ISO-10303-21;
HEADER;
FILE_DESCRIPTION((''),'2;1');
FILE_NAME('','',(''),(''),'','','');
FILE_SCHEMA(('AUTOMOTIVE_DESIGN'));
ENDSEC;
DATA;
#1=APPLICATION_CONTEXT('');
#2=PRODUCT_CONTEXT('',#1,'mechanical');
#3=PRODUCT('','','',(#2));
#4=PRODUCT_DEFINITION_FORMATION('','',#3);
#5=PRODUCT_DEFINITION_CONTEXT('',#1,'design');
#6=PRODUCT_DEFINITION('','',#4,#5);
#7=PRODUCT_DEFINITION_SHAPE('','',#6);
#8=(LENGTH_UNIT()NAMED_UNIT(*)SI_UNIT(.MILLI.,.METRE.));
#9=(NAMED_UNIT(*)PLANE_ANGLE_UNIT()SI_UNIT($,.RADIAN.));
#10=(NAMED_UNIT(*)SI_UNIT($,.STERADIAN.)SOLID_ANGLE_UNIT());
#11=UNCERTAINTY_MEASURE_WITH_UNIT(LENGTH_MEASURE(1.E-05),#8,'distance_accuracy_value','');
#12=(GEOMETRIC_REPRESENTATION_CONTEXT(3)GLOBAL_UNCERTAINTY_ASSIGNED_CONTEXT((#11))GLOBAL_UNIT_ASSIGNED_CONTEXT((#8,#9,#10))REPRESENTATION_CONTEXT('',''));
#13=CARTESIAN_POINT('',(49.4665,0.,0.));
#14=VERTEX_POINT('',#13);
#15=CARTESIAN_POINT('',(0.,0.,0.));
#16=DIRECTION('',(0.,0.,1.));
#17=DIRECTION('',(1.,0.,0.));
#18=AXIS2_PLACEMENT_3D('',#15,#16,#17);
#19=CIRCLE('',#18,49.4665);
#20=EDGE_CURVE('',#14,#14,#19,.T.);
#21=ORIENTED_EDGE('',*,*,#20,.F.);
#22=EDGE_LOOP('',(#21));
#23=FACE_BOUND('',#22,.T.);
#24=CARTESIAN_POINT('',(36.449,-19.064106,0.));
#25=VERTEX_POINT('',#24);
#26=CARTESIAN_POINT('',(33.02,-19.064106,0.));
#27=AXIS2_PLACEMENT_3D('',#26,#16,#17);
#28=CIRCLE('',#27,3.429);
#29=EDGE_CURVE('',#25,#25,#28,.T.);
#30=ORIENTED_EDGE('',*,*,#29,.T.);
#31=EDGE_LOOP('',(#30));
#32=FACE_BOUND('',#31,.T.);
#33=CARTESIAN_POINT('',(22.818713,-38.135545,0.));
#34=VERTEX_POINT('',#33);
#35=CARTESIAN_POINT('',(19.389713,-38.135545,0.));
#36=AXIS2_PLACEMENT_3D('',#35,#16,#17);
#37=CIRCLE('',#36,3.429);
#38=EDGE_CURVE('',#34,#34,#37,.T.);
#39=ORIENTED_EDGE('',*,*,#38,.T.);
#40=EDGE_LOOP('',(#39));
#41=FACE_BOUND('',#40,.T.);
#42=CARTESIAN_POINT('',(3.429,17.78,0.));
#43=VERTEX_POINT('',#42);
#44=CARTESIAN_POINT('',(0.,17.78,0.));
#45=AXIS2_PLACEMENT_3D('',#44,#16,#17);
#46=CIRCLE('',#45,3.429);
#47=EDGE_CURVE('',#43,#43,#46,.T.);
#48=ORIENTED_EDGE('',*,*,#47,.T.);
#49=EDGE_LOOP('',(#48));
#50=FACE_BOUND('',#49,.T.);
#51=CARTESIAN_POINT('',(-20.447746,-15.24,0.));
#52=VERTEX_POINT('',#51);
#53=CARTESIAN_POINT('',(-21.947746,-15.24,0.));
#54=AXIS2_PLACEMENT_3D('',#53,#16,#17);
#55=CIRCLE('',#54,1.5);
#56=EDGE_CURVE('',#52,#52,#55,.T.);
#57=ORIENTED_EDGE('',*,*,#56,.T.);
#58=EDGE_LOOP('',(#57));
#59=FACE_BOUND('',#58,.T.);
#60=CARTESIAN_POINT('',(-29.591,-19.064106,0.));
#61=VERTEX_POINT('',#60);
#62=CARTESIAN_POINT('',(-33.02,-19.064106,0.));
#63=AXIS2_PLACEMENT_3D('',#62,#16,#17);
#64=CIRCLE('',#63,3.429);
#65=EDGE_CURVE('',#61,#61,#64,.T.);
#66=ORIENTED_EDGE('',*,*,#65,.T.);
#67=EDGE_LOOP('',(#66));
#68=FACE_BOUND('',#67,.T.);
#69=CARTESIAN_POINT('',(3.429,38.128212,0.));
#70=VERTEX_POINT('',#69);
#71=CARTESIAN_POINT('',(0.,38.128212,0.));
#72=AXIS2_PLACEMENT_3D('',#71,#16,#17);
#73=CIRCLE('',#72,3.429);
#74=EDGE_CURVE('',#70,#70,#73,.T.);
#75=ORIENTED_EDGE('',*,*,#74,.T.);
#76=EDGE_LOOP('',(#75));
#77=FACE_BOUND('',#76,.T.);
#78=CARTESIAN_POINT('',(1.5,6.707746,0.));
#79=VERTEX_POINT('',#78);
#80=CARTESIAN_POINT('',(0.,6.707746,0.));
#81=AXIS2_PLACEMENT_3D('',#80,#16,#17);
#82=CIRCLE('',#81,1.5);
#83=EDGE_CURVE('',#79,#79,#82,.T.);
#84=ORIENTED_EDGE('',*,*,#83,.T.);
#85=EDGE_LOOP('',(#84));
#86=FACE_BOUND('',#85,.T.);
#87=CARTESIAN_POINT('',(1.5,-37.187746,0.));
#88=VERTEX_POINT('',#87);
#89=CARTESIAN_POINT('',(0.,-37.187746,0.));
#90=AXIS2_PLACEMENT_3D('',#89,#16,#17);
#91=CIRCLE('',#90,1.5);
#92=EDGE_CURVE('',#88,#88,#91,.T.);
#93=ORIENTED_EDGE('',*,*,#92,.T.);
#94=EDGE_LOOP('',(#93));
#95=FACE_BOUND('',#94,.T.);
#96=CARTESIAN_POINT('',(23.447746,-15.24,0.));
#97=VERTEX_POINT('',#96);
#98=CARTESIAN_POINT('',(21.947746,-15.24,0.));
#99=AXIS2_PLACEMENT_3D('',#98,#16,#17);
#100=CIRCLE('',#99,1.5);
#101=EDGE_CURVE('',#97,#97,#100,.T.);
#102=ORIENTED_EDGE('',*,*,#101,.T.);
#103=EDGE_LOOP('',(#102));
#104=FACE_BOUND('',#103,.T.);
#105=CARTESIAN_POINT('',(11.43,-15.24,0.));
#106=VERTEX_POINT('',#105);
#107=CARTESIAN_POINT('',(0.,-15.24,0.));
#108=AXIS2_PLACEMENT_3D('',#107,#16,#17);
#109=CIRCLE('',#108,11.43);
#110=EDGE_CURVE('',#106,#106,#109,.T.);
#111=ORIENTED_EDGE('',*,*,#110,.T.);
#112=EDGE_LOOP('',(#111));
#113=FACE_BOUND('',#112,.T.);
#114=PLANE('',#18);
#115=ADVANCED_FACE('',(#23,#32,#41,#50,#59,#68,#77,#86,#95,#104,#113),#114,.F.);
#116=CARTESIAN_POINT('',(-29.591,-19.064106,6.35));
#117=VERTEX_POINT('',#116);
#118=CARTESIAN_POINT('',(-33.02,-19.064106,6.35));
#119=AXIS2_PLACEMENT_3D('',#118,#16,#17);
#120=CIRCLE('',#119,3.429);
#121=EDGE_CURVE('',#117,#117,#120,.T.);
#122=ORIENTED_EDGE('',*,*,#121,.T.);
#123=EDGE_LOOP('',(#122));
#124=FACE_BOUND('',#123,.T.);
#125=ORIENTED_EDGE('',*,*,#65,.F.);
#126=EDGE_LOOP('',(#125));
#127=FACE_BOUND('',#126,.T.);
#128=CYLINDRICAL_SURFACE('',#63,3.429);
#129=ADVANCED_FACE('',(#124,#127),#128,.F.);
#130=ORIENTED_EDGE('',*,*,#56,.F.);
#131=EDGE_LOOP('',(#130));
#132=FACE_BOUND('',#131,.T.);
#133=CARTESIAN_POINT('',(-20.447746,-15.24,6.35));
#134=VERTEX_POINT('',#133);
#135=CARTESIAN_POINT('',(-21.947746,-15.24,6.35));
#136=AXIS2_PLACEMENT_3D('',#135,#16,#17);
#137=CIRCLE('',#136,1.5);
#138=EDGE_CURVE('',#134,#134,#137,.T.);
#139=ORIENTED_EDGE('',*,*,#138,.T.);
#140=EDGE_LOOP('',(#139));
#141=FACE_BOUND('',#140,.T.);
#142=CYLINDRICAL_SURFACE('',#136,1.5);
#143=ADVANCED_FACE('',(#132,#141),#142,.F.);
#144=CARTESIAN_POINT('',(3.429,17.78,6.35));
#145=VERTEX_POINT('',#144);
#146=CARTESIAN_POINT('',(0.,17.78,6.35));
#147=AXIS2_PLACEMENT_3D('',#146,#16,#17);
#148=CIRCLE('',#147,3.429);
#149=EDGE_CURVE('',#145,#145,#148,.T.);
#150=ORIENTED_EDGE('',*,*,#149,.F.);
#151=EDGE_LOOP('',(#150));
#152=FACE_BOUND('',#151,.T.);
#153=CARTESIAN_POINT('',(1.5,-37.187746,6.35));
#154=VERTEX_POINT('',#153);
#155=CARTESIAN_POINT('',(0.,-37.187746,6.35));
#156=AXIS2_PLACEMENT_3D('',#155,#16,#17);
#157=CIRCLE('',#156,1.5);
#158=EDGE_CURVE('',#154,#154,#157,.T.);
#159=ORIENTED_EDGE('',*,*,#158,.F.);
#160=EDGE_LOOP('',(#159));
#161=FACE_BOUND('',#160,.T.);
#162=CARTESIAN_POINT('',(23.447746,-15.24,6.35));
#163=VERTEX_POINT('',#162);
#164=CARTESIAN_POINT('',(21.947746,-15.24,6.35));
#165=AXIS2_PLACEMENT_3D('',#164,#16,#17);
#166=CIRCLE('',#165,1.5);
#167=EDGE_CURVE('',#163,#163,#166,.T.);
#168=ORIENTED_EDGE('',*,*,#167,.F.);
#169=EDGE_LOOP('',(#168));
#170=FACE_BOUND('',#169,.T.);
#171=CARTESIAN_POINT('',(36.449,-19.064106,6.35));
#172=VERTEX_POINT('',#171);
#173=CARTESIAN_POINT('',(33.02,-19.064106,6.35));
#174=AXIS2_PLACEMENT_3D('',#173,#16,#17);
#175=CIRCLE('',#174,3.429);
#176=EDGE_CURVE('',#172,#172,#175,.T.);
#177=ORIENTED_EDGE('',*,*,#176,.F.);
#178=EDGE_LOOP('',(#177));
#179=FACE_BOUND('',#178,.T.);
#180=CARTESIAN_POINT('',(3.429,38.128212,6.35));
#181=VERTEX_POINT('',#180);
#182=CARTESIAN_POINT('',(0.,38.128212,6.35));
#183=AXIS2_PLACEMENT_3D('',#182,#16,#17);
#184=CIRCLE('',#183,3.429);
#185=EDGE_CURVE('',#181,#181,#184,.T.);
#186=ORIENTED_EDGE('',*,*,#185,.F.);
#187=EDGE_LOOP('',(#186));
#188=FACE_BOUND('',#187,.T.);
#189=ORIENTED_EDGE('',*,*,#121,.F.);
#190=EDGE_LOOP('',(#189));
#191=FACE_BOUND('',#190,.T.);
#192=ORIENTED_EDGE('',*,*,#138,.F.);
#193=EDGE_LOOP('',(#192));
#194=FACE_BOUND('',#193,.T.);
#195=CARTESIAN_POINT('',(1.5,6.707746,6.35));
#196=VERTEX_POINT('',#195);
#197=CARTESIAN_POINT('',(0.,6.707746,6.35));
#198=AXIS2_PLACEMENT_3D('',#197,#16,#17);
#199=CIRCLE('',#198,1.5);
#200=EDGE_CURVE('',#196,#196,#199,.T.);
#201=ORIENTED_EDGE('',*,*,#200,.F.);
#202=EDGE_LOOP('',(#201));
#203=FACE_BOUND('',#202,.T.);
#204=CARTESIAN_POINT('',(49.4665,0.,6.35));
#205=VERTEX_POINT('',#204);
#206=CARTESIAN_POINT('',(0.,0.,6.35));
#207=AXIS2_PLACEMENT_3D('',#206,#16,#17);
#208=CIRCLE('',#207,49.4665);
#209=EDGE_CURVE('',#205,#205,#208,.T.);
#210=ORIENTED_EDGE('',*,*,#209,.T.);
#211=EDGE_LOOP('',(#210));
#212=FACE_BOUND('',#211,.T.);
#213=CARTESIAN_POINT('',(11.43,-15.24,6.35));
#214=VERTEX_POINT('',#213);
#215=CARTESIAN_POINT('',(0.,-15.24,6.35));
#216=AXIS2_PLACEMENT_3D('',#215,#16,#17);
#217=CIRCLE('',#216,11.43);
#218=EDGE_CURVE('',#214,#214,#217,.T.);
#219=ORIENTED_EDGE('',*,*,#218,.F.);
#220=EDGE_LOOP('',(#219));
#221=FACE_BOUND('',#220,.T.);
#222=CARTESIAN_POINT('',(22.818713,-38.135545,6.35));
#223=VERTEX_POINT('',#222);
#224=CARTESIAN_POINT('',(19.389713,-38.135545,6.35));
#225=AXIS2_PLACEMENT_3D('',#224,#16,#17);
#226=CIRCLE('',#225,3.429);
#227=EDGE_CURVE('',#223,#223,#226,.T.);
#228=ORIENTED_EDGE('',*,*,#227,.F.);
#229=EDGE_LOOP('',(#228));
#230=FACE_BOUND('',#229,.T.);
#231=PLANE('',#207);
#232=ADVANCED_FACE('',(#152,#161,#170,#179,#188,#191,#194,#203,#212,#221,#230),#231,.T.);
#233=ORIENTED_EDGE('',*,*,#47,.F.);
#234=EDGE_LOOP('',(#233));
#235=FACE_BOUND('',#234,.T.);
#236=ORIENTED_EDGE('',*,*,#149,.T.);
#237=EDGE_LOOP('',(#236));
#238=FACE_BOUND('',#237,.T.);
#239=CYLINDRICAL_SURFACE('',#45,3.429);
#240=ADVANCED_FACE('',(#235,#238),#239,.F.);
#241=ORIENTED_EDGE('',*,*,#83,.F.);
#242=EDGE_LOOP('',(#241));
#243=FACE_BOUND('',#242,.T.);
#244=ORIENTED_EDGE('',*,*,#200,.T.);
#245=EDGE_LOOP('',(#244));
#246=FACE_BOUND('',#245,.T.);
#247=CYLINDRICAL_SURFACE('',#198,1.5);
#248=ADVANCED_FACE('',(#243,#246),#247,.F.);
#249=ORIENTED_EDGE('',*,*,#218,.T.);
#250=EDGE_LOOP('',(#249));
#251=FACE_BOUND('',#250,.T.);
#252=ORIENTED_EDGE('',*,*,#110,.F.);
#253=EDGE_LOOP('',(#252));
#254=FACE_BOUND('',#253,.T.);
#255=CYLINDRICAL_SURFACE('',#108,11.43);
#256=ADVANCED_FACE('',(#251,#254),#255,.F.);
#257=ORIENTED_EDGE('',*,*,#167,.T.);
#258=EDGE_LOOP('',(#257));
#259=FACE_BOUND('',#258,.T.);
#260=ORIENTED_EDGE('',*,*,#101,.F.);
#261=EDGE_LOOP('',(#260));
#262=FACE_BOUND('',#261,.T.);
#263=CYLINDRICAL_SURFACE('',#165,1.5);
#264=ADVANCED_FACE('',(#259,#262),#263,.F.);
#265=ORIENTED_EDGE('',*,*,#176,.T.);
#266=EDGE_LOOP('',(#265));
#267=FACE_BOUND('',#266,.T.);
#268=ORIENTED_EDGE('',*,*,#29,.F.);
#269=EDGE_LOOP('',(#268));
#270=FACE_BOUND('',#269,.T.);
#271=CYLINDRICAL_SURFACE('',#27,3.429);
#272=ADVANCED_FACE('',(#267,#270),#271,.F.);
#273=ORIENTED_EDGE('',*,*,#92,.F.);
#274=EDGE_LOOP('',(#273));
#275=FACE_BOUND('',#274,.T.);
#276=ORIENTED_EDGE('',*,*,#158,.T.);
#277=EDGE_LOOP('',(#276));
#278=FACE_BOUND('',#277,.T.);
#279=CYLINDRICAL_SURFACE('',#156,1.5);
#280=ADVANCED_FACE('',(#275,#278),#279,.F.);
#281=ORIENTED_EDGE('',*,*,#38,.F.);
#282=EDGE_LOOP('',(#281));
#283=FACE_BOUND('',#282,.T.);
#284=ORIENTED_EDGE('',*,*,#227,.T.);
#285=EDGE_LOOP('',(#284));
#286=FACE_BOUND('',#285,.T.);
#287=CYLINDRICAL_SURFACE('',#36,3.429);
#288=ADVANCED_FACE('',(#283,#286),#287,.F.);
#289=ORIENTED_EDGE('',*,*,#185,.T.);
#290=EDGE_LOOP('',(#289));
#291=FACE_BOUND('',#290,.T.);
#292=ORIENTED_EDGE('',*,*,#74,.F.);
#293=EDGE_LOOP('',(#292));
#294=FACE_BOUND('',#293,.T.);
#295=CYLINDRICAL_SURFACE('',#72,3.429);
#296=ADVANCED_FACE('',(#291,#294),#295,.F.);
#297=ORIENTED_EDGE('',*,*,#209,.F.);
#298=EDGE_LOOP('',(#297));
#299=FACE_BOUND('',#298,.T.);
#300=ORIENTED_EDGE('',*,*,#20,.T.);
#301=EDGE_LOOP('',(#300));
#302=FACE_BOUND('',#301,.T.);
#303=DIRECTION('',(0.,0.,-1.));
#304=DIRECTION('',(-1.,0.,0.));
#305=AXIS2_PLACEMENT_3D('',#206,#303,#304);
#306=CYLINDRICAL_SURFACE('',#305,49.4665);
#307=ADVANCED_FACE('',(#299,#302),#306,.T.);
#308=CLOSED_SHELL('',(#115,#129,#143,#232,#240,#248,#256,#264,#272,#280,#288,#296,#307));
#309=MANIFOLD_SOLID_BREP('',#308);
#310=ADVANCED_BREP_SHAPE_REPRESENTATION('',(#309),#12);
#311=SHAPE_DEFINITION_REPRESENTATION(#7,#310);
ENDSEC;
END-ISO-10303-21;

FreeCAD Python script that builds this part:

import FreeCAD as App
import Part
import Sketcher
Q = App.Units.Quantity

doc = App.newDocument("Part")
body = doc.addObject("PartDesign::Body", "Body")

# Sketch on XY plane
sketch1 = body.newObject("Sketcher::SketchObject", "Sketch")
sketch1.AttachmentSupport = (doc.getObject("XY_Plane"), [""])
sketch1.MapMode = "FlatFace"
sketch1.addGeometry(Part.Circle(App.Vector(0, 0, 0), App.Vector(0, 0, 1), 49), False)
sketch1.addConstraint([
    Sketcher.Constraint("Coincident", 0, 3, -1, 1),
    Sketcher.Constraint("Diameter", 0, Q("3.895 in")),
])
pad1 = body.newObject("PartDesign::Pad", "Pad")
pad1.Profile = sketch1
pad1.Length = Q("0.25 in")

# Sketch on XY plane
sketch2 = body.newObject("Sketcher::SketchObject", "Sketch001")
sketch2.AttachmentSupport = (doc.getObject("XY_Plane"), [""])
sketch2.MapMode = "FlatFace"
sketch2.AttachmentOffset = App.Placement(App.Vector(0, 0, 0.25 * 25.4), App.Rotation())
sketch2.addGeometry([
    Part.Circle(App.Vector(0, 6.7, 0), App.Vector(0, 0, 1), 1.5),
    Part.Circle(App.Vector(-21.9, -15.2, 0), App.Vector(0, 0, 1), 1.5),
    Part.Circle(App.Vector(0, -37.2, 0), App.Vector(0, 0, 1), 1.5),
    Part.Circle(App.Vector(21.9, -15.2, 0), App.Vector(0, 0, 1), 1.5),
], False)
sketch2.addConstraint([
    Sketcher.Constraint("Equal", 0, 1),
    Sketcher.Constraint("Equal", 1, 2),
    Sketcher.Constraint("Equal", 2, 3),
    Sketcher.Constraint("Symmetric", 1, 3, 3, 3, -2),
    Sketcher.Constraint("PointOnObject", 0, 3, -2),
    Sketcher.Constraint("PointOnObject", 2, 3, -2),
    Sketcher.Constraint("DistanceY", 1, 3, -1, 1, Q("0.6 in")),
    Sketcher.Constraint("Diameter", 0, Q("3 mm")),
    Sketcher.Constraint("DistanceY", 2, 3, 0, 3, Q("43.895492 mm")),
    Sketcher.Constraint("DistanceX", 1, 3, 3, 3, Q("43.895492 mm")),
    Sketcher.Constraint("DistanceY", -1, 1, 0, 3, Q("6.707746 mm")),
])
doc.recompute()
hole = body.newObject("PartDesign::Hole", "Hole")
hole.Profile = sketch2
hole.ThreadType = "None"
hole.Diameter = 3
hole.DepthType = "ThroughAll"

# Sketch on XY plane
sketch3 = body.newObject("Sketcher::SketchObject", "Sketch002")
sketch3.AttachmentSupport = (doc.getObject("XY_Plane"), [""])
sketch3.MapMode = "FlatFace"
sketch3.AttachmentOffset = App.Placement(App.Vector(0, 0, 0.25 * 25.4), App.Rotation())
sketch3.addGeometry([
    Part.Circle(App.Vector(0, 38.1, 0), App.Vector(0, 0, 1), 3.4),
    Part.Circle(App.Vector(-33, -19.1, 0), App.Vector(0, 0, 1), 3.4),
    Part.Circle(App.Vector(33, -19.1, 0), App.Vector(0, 0, 1), 3.4),
], False)
sketch3.addConstraint([
    Sketcher.Constraint("Equal", 0, 1),
    Sketcher.Constraint("Equal", 1, 2),
    Sketcher.Constraint("Symmetric", 1, 3, 2, 3, -2),
    Sketcher.Constraint("PointOnObject", 0, 3, -2),
    Sketcher.Constraint("Diameter", 0, Q("0.27 in")),
    Sketcher.Constraint("DistanceX", 1, 3, -1, 1, Q("1.3 in")),
    Sketcher.Constraint("DistanceY", -1, 1, 0, 3, Q("38.128212 mm")),
    Sketcher.Constraint("DistanceY", 1, 3, -1, 1, Q("19.064106 mm")),
])
pocket1 = body.newObject("PartDesign::Pocket", "Pocket")
pocket1.Profile = sketch3
pocket1.Type = "ThroughAll"

# Sketch on XY plane
sketch4 = body.newObject("Sketcher::SketchObject", "Sketch003")
sketch4.AttachmentSupport = (doc.getObject("XY_Plane"), [""])
sketch4.MapMode = "FlatFace"
sketch4.AttachmentOffset = App.Placement(App.Vector(0, 0, 0.25 * 25.4), App.Rotation())
sketch4.addGeometry(Part.Circle(App.Vector(0, -15, 0), App.Vector(0, 0, 1), 11), False)
sketch4.addConstraint([
    Sketcher.Constraint("PointOnObject", 0, 3, -2),
    Sketcher.Constraint("Diameter", 0, Q("0.9 in")),
    Sketcher.Constraint("DistanceY", 0, 3, -1, 1, Q("0.6 in")),
])
pocket2 = body.newObject("PartDesign::Pocket", "Pocket001")
pocket2.Profile = sketch4
pocket2.Type = "ThroughAll"

# Sketch on XY plane
sketch5 = body.newObject("Sketcher::SketchObject", "Sketch004")
sketch5.AttachmentSupport = (doc.getObject("XY_Plane"), [""])
sketch5.MapMode = "FlatFace"
sketch5.AttachmentOffset = App.Placement(App.Vector(0, 0, 0.25 * 25.4), App.Rotation())
sketch5.addGeometry(Part.Circle(App.Vector(0, 17.8, 0), App.Vector(0, 0, 1), 3.4), False)
sketch5.addConstraint([
    Sketcher.Constraint("PointOnObject", 0, 3, -2),
    Sketcher.Constraint("Diameter", 0, Q("0.27 in")),
    Sketcher.Constraint("DistanceY", -1, 1, 0, 3, Q("0.7 in")),
])
pocket3 = body.newObject("PartDesign::Pocket", "Pocket002")
pocket3.Profile = sketch5
pocket3.Type = "ThroughAll"

# Sketch on XY plane
sketch6 = body.newObject("Sketcher::SketchObject", "Sketch005")
sketch6.AttachmentSupport = (doc.getObject("XY_Plane"), [""])
sketch6.MapMode = "FlatFace"
sketch6.AttachmentOffset = App.Placement(App.Vector(0, 0, 0.25 * 25.4), App.Rotation())
sketch6.addGeometry(Part.Circle(App.Vector(19.4, -38.1, 0), App.Vector(0, 0, 1), 3.4), False)
sketch6.addConstraint([
    Sketcher.Constraint("Diameter", 0, Q("0.27 in")),
    Sketcher.Constraint("DistanceX", -1, 1, 0, 3, Q("19.389713 mm")),
    Sketcher.Constraint("DistanceY", 0, 3, -1, 1, Q("38.135545 mm")),
])
pocket4 = body.newObject("PartDesign::Pocket", "Pocket003")
pocket4.Profile = sketch6
pocket4.Type = "ThroughAll"

doc.recompute()
